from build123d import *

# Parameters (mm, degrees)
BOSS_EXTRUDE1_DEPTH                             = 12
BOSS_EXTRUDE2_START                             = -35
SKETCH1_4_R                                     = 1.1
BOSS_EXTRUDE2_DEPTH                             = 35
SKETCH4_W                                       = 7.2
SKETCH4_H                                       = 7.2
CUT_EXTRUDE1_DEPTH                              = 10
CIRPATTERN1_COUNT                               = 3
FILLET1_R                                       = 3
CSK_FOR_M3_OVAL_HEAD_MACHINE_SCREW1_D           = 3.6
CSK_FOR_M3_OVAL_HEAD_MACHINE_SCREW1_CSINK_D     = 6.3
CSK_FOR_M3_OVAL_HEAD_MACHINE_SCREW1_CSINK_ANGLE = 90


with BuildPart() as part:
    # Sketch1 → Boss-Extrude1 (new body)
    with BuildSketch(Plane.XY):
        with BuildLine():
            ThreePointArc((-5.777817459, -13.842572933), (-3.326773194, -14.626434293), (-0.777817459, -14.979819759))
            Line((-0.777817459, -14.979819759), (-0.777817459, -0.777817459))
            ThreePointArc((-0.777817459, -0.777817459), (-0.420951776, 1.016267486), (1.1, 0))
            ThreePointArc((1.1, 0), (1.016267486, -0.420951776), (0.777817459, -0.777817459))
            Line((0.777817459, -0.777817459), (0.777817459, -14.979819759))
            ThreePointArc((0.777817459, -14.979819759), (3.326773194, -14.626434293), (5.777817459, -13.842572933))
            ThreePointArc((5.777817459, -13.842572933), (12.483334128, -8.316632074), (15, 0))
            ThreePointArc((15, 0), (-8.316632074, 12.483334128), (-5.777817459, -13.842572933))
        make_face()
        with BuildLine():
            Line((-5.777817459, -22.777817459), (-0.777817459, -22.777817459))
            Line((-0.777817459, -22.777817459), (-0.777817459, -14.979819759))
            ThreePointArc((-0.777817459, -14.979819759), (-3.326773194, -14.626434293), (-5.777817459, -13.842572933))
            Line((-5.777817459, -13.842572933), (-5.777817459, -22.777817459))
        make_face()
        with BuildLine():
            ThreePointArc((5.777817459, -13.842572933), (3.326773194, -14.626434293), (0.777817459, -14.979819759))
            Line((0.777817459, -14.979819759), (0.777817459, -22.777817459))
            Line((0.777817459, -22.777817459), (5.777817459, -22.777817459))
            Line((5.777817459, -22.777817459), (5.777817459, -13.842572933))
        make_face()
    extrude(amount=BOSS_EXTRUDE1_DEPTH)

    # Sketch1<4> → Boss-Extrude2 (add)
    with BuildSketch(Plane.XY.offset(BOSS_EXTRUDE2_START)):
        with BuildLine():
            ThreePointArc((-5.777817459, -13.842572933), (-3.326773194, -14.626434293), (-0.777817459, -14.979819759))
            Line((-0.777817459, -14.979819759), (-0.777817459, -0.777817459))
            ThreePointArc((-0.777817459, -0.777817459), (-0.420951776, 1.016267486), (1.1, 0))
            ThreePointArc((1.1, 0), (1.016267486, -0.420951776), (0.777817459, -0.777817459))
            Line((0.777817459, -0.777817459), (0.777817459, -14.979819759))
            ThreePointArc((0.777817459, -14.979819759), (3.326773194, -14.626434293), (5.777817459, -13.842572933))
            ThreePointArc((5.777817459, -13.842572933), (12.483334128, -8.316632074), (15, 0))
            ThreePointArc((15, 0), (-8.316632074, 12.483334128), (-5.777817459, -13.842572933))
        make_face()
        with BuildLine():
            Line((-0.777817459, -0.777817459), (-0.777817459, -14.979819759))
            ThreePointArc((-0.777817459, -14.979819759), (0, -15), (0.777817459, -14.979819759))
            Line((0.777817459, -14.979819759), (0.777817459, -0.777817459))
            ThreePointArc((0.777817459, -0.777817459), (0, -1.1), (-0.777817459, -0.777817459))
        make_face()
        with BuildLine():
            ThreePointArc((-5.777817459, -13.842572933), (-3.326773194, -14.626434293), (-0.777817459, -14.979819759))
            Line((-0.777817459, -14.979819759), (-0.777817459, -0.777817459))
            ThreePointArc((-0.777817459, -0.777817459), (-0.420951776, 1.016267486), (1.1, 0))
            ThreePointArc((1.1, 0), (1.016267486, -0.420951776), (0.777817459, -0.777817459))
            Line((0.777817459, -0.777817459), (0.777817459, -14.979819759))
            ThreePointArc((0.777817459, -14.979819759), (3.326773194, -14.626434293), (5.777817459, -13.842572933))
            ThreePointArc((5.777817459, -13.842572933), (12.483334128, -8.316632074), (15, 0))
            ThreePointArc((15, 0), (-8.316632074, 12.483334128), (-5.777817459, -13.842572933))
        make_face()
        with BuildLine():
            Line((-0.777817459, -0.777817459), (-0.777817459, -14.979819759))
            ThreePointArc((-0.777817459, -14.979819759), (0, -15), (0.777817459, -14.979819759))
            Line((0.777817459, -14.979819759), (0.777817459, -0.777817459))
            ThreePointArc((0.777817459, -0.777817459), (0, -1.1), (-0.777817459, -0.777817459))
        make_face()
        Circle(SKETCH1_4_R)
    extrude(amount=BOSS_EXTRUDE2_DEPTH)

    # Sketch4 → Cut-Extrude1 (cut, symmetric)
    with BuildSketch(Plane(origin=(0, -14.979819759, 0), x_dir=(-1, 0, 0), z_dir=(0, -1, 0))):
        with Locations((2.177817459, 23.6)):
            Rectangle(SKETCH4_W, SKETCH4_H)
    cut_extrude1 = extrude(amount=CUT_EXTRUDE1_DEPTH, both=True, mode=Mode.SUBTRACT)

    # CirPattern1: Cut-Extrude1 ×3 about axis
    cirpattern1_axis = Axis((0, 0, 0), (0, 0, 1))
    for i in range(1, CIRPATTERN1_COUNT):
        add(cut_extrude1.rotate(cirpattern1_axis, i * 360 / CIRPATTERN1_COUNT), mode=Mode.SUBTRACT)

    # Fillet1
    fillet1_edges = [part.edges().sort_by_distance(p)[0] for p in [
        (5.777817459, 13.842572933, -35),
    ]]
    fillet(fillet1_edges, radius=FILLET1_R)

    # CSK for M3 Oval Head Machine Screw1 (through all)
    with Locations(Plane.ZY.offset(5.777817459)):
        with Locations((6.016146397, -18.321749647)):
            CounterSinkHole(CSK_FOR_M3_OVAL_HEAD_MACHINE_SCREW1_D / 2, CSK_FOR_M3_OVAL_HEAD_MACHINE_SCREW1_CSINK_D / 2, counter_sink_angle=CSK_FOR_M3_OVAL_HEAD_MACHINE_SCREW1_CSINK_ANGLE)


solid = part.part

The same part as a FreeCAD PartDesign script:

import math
import FreeCAD as App
import Part
import Sketcher
from FreeCAD import Vector


def edges_at(feature, points):
    """Names of the edges that pass closest to the given points."""
    edges = feature.Shape.Edges
    near = lambda p: min(range(len(edges)), key=lambda i: edges[i].distToShape(Part.Vertex(*p))[0])
    return sorted({f"Edge{near(p) + 1}" for p in points})

doc = App.newDocument("Part")
params = doc.addObject("Spreadsheet::Sheet", "Params")
for row, (alias, value) in enumerate([
    ("sketch1_radius", "15 mm"),
    ("sketch1_radius2", "1.1 mm"),
    ("sketch1_width", "5 mm"),
    ("sketch1_height", "22 mm"),
    ("pad1_length", "12 mm"),
    ("sketch2_radius", "15 mm"),
    ("pad2_length", "35 mm"),
    ("sketch3_width", "7.2 mm"),
    ("pocket1_length", "20 mm"),
    ("fillet_radius", "3 mm"),
    ("sketch4_diameter", "3.6 mm"),
    ("hole_diameter", "3.6 mm"),
    ("hole_csink_diameter", "6.3 mm"),
], start=1):
    params.set(f"A{row}", alias)
    params.set(f"B{row}", "=" + value)
    params.setAlias(f"B{row}", alias)

body = doc.addObject("PartDesign::Body", "Body")

sketch1 = body.newObject("Sketcher::SketchObject", "Sketch")
sketch1.AttachmentSupport = (doc.getObject("XY_Plane"), [""])
sketch1.MapMode = "FlatFace"
sketch1.addGeometry(Part.ArcOfCircle(Part.Circle(Vector(0, 0, 0), Vector(0, 0, 1), 1.1), math.radians(0), math.radians(225)), False)
sketch1.addGeometry(Part.ArcOfCircle(Part.Circle(Vector(0, 0, 0), Vector(0, 0, 1), 1.1), math.radians(-45), math.radians(0)), False)
sketch1.addGeometry(Part.LineSegment(Vector(0.8, -0.8, 0), Vector(0.8, -22.8, 0)), False)
sketch1.addGeometry(Part.LineSegment(Vector(0.8, -22.8, 0), Vector(5.8, -22.8, 0)), False)
sketch1.addGeometry(Part.LineSegment(Vector(5.8, -22.8, 0), Vector(5.8, -13.8, 0)), False)
sketch1.addGeometry(Part.ArcOfCircle(Part.Circle(Vector(0, 0, 0), Vector(0, 0, 1), 15), math.radians(-67), math.radians(0)), False)
sketch1.addGeometry(Part.ArcOfCircle(Part.Circle(Vector(0, 0, 0), Vector(0, 0, 1), 15), math.radians(0), math.radians(247)), False)
sketch1.addGeometry(Part.LineSegment(Vector(-5.8, -13.8, 0), Vector(-5.8, -22.8, 0)), False)
sketch1.addGeometry(Part.LineSegment(Vector(-5.8, -22.8, 0), Vector(-0.8, -22.8, 0)), False)
sketch1.addGeometry(Part.LineSegment(Vector(-0.8, -22.8, 0), Vector(-0.8, -0.8, 0)), False)
sketch1.addConstraint(Sketcher.Constraint("Tangent", 0, 1, 1, 2))
sketch1.addConstraint(Sketcher.Constraint("Coincident", 1, 1, 2, 1))
sketch1.addConstraint(Sketcher.Constraint("Coincident", 2, 2, 3, 1))
sketch1.addConstraint(Sketcher.Constraint("Coincident", 3, 2, 4, 1))
sketch1.addConstraint(Sketcher.Constraint("Coincident", 4, 2, 5, 1))
sketch1.addConstraint(Sketcher.Constraint("Tangent", 5, 2, 6, 1))
sketch1.addConstraint(Sketcher.Constraint("Coincident", 6, 2, 7, 1))
sketch1.addConstraint(Sketcher.Constraint("Coincident", 7, 2, 8, 1))
sketch1.addConstraint(Sketcher.Constraint("Coincident", 8, 2, 9, 1))
sketch1.addConstraint(Sketcher.Constraint("Coincident", 9, 2, 0, 2))
sketch1.addConstraint(Sketcher.Constraint("Vertical", 2))
sketch1.addConstraint(Sketcher.Constraint("Horizontal", 3))
sketch1.addConstraint(Sketcher.Constraint("Vertical", 4))
sketch1.addConstraint(Sketcher.Constraint("Vertical", 7))
sketch1.addConstraint(Sketcher.Constraint("Horizontal", 8))
sketch1.addConstraint(Sketcher.Constraint("Vertical", 9))
sketch1.addConstraint(Sketcher.Constraint("Coincident", 0, 3, -1, 1))
sketch1.addConstraint(Sketcher.Constraint("Coincident", 5, 3, -1, 1))
sketch1.addConstraint(Sketcher.Constraint("Equal", 0, 1))
sketch1.addConstraint(Sketcher.Constraint("Equal", 5, 6))
sketch1.addConstraint(Sketcher.Constraint("Symmetric", 3, 2, 7, 2, -2))
sketch1.addConstraint(Sketcher.Constraint("PointOnObject", 0, 1, -1))
sketch1.addConstraint(Sketcher.Constraint("PointOnObject", 5, 2, -1))
sketch1.addConstraint(Sketcher.Constraint("Horizontal", 1, 1, 9, 2))
sketch1.addConstraint(Sketcher.Constraint("Radius", 5, 15.0))
sketch1.addConstraint(Sketcher.Constraint("Radius", 0, 1.1))
sketch1.addConstraint(Sketcher.Constraint("DistanceX", 3, 1, 3, 2, 5.0))
sketch1.addConstraint(Sketcher.Constraint("DistanceY", 2, 2, 2, 1, 22.0))
sketch1.addConstraint(Sketcher.Constraint("DistanceY", 4, 1, 4, 2, 8.935245))
sketch1.setExpression("Constraints[24]", "Params.sketch1_radius")
sketch1.setExpression("Constraints[25]", "Params.sketch1_radius2")
sketch1.setExpression("Constraints[26]", "Params.sketch1_width")
sketch1.setExpression("Constraints[27]", "Params.sketch1_height")
pad1 = body.newObject("PartDesign::Pad", "Pad")
pad1.Profile = sketch1
pad1.setExpression("Length", "Params.pad1_length")

sketch2 = body.newObject("Sketcher::SketchObject", "Sketch001")
sketch2.AttachmentSupport = (doc.getObject("XY_Plane"), [""])
sketch2.MapMode = "FlatFace"
sketch2.AttachmentOffset = App.Placement(Vector(0, 0, -35), App.Rotation())
sketch2.addGeometry(Part.ArcOfCircle(Part.Circle(Vector(0, 0, 0), Vector(0, 0, 1), 15), math.radians(-67), math.radians(0)), False)
sketch2.addGeometry(Part.ArcOfCircle(Part.Circle(Vector(0, 0, 0), Vector(0, 0, 1), 15), math.radians(0), math.radians(247)), False)
sketch2.addGeometry(Part.ArcOfCircle(Part.Circle(Vector(0, 0, 0), Vector(0, 0, 1), 15), math.radians(-112.66), math.radians(-92.97)), False)
sketch2.addGeometry(Part.ArcOfCircle(Part.Circle(Vector(0, 0, 0), Vector(0, 0, 1), 15), math.radians(-92.97), math.radians(-87.03)), False)
sketch2.addGeometry(Part.ArcOfCircle(Part.Circle(Vector(0, 0, 0), Vector(0, 0, 1), 15), math.radians(-87.03), math.radians(-67.34)), False)
sketch2.addConstraint(Sketcher.Constraint("Tangent", 0, 2, 1, 1))
sketch2.addConstraint(Sketcher.Constraint("Tangent", 1, 2, 2, 1))
sketch2.addConstraint(Sketcher.Constraint("Tangent", 2, 2, 3, 1))
sketch2.addConstraint(Sketcher.Constraint("Tangent", 3, 2, 4, 1))
sketch2.addConstraint(Sketcher.Constraint("Tangent", 4, 2, 0, 1))
sketch2.addConstraint(Sketcher.Constraint("Coincident", 0, 3, -1, 1))
sketch2.addConstraint(Sketcher.Constraint("Coincident", 2, 3, -1, 1))
sketch2.addConstraint(Sketcher.Constraint("PointOnObject", 0, 2, -1))
sketch2.addConstraint(Sketcher.Constraint("Horizontal", 2, 2, 3, 2))
sketch2.addConstraint(Sketcher.Constraint("Horizontal", 1, 2, 4, 2))
sketch2.addConstraint(Sketcher.Constraint("Radius", 0, 15.0))
sketch2.addConstraint(Sketcher.Constraint("DistanceX", 1, 2, 2, 2, 5.0))
sketch2.addConstraint(Sketcher.Constraint("DistanceY", 2, 2, -1, 1, 14.97982))
sketch2.setExpression("Constraints[10]", "Params.sketch2_radius")
pad2 = body.newObject("PartDesign::Pad", "Pad001")
pad2.Profile = sketch2
pad2.setExpression("Length", "Params.pad2_length")

sketch3 = body.newObject("Sketcher::SketchObject", "Sketch002")
sketch3.AttachmentSupport = (doc.getObject("XZ_Plane"), [""])
sketch3.MapMode = "FlatFace"
sketch3.AttachmentOffset = App.Placement(Vector(0, 0, 14.97982), App.Rotation())
sketch3.addGeometry(Part.LineSegment(Vector(1, -27, 0), Vector(1, -20, 0)), False)
sketch3.addGeometry(Part.LineSegment(Vector(1, -20, 0), Vector(-6, -20, 0)), False)
sketch3.addGeometry(Part.LineSegment(Vector(-6, -20, 0), Vector(-6, -27, 0)), False)
sketch3.addGeometry(Part.LineSegment(Vector(-6, -27, 0), Vector(1, -27, 0)), False)
sketch3.addConstraint(Sketcher.Constraint("Coincident", 0, 2, 1, 1))
sketch3.addConstraint(Sketcher.Constraint("Coincident", 1, 2, 2, 1))
sketch3.addConstraint(Sketcher.Constraint("Coincident", 2, 2, 3, 1))
sketch3.addConstraint(Sketcher.Constraint("Coincident", 3, 2, 0, 1))
sketch3.addConstraint(Sketcher.Constraint("Vertical", 0))
sketch3.addConstraint(Sketcher.Constraint("Horizontal", 1))
sketch3.addConstraint(Sketcher.Constraint("Vertical", 2))
sketch3.addConstraint(Sketcher.Constraint("Horizontal", 3))
sketch3.addConstraint(Sketcher.Constraint("Equal", 3, 0))
sketch3.addConstraint(Sketcher.Constraint("DistanceX", 1, 2, 1, 1, 7.2))
sketch3.addConstraint(Sketcher.Constraint("DistanceY", 0, 2, -1, 1, 20.0))
sketch3.addConstraint(Sketcher.Constraint("DistanceX", -1, 1, 0, 2, 1.422183))
sketch3.setExpression("Constraints[9]", "Params.sketch3_width")
pocket1 = body.newObject("PartDesign::Pocket", "Pocket")
pocket1.Profile = sketch3
pocket1.setExpression("Length", "Params.pocket1_length")
pocket1.Midplane = True
doc.recompute()

polarpattern = body.newObject("PartDesign::PolarPattern", "PolarPattern")
polarpattern.Originals = [pocket1]
polarpattern.Axis = (doc.getObject("Z_Axis"), [""])
polarpattern.Angle = 360
polarpattern.Occurrences = 3
body.Tip = polarpattern
doc.recompute()

fillet = body.newObject("PartDesign::Fillet", "Fillet")
fillet.Base = (polarpattern, edges_at(polarpattern, [(-8.317, 12.483, -35)]))
fillet.setExpression("Radius", "Params.fillet_radius")

sketch4 = body.newObject("Sketcher::SketchObject", "Sketch003")
sketch4.AttachmentSupport = (doc.getObject("YZ_Plane"), [""])
sketch4.MapMode = "FlatFace"
sketch4.AttachmentOffset = App.Placement(Vector(0, 0, -5.777817), App.Rotation())
sketch4.addGeometry(Part.Circle(Vector(-18.3, 6, 0), Vector(0, 0, 1), 1.8), False)
sketch4.addConstraint(Sketcher.Constraint("Diameter", 0, 3.6))
sketch4.addConstraint(Sketcher.Constraint("DistanceX", 0, 3, -1, 1, 18.32175))
sketch4.addConstraint(Sketcher.Constraint("DistanceY", -1, 1, 0, 3, 6.016146))
sketch4.setExpression("Constraints[0]", "Params.sketch4_diameter")
doc.recompute()
hole = body.newObject("PartDesign::Hole", "Hole")
hole.Profile = sketch4
hole.ThreadType = "None"
hole.setExpression("Diameter", "Params.hole_diameter")
hole.DepthType = "ThroughAll"
hole.HoleCutType = "Countersink"
hole.setExpression("HoleCutDiameter", "Params.hole_csink_diameter")
hole.HoleCutCountersinkAngle = 90
hole.Reversed = True

doc.recompute()
